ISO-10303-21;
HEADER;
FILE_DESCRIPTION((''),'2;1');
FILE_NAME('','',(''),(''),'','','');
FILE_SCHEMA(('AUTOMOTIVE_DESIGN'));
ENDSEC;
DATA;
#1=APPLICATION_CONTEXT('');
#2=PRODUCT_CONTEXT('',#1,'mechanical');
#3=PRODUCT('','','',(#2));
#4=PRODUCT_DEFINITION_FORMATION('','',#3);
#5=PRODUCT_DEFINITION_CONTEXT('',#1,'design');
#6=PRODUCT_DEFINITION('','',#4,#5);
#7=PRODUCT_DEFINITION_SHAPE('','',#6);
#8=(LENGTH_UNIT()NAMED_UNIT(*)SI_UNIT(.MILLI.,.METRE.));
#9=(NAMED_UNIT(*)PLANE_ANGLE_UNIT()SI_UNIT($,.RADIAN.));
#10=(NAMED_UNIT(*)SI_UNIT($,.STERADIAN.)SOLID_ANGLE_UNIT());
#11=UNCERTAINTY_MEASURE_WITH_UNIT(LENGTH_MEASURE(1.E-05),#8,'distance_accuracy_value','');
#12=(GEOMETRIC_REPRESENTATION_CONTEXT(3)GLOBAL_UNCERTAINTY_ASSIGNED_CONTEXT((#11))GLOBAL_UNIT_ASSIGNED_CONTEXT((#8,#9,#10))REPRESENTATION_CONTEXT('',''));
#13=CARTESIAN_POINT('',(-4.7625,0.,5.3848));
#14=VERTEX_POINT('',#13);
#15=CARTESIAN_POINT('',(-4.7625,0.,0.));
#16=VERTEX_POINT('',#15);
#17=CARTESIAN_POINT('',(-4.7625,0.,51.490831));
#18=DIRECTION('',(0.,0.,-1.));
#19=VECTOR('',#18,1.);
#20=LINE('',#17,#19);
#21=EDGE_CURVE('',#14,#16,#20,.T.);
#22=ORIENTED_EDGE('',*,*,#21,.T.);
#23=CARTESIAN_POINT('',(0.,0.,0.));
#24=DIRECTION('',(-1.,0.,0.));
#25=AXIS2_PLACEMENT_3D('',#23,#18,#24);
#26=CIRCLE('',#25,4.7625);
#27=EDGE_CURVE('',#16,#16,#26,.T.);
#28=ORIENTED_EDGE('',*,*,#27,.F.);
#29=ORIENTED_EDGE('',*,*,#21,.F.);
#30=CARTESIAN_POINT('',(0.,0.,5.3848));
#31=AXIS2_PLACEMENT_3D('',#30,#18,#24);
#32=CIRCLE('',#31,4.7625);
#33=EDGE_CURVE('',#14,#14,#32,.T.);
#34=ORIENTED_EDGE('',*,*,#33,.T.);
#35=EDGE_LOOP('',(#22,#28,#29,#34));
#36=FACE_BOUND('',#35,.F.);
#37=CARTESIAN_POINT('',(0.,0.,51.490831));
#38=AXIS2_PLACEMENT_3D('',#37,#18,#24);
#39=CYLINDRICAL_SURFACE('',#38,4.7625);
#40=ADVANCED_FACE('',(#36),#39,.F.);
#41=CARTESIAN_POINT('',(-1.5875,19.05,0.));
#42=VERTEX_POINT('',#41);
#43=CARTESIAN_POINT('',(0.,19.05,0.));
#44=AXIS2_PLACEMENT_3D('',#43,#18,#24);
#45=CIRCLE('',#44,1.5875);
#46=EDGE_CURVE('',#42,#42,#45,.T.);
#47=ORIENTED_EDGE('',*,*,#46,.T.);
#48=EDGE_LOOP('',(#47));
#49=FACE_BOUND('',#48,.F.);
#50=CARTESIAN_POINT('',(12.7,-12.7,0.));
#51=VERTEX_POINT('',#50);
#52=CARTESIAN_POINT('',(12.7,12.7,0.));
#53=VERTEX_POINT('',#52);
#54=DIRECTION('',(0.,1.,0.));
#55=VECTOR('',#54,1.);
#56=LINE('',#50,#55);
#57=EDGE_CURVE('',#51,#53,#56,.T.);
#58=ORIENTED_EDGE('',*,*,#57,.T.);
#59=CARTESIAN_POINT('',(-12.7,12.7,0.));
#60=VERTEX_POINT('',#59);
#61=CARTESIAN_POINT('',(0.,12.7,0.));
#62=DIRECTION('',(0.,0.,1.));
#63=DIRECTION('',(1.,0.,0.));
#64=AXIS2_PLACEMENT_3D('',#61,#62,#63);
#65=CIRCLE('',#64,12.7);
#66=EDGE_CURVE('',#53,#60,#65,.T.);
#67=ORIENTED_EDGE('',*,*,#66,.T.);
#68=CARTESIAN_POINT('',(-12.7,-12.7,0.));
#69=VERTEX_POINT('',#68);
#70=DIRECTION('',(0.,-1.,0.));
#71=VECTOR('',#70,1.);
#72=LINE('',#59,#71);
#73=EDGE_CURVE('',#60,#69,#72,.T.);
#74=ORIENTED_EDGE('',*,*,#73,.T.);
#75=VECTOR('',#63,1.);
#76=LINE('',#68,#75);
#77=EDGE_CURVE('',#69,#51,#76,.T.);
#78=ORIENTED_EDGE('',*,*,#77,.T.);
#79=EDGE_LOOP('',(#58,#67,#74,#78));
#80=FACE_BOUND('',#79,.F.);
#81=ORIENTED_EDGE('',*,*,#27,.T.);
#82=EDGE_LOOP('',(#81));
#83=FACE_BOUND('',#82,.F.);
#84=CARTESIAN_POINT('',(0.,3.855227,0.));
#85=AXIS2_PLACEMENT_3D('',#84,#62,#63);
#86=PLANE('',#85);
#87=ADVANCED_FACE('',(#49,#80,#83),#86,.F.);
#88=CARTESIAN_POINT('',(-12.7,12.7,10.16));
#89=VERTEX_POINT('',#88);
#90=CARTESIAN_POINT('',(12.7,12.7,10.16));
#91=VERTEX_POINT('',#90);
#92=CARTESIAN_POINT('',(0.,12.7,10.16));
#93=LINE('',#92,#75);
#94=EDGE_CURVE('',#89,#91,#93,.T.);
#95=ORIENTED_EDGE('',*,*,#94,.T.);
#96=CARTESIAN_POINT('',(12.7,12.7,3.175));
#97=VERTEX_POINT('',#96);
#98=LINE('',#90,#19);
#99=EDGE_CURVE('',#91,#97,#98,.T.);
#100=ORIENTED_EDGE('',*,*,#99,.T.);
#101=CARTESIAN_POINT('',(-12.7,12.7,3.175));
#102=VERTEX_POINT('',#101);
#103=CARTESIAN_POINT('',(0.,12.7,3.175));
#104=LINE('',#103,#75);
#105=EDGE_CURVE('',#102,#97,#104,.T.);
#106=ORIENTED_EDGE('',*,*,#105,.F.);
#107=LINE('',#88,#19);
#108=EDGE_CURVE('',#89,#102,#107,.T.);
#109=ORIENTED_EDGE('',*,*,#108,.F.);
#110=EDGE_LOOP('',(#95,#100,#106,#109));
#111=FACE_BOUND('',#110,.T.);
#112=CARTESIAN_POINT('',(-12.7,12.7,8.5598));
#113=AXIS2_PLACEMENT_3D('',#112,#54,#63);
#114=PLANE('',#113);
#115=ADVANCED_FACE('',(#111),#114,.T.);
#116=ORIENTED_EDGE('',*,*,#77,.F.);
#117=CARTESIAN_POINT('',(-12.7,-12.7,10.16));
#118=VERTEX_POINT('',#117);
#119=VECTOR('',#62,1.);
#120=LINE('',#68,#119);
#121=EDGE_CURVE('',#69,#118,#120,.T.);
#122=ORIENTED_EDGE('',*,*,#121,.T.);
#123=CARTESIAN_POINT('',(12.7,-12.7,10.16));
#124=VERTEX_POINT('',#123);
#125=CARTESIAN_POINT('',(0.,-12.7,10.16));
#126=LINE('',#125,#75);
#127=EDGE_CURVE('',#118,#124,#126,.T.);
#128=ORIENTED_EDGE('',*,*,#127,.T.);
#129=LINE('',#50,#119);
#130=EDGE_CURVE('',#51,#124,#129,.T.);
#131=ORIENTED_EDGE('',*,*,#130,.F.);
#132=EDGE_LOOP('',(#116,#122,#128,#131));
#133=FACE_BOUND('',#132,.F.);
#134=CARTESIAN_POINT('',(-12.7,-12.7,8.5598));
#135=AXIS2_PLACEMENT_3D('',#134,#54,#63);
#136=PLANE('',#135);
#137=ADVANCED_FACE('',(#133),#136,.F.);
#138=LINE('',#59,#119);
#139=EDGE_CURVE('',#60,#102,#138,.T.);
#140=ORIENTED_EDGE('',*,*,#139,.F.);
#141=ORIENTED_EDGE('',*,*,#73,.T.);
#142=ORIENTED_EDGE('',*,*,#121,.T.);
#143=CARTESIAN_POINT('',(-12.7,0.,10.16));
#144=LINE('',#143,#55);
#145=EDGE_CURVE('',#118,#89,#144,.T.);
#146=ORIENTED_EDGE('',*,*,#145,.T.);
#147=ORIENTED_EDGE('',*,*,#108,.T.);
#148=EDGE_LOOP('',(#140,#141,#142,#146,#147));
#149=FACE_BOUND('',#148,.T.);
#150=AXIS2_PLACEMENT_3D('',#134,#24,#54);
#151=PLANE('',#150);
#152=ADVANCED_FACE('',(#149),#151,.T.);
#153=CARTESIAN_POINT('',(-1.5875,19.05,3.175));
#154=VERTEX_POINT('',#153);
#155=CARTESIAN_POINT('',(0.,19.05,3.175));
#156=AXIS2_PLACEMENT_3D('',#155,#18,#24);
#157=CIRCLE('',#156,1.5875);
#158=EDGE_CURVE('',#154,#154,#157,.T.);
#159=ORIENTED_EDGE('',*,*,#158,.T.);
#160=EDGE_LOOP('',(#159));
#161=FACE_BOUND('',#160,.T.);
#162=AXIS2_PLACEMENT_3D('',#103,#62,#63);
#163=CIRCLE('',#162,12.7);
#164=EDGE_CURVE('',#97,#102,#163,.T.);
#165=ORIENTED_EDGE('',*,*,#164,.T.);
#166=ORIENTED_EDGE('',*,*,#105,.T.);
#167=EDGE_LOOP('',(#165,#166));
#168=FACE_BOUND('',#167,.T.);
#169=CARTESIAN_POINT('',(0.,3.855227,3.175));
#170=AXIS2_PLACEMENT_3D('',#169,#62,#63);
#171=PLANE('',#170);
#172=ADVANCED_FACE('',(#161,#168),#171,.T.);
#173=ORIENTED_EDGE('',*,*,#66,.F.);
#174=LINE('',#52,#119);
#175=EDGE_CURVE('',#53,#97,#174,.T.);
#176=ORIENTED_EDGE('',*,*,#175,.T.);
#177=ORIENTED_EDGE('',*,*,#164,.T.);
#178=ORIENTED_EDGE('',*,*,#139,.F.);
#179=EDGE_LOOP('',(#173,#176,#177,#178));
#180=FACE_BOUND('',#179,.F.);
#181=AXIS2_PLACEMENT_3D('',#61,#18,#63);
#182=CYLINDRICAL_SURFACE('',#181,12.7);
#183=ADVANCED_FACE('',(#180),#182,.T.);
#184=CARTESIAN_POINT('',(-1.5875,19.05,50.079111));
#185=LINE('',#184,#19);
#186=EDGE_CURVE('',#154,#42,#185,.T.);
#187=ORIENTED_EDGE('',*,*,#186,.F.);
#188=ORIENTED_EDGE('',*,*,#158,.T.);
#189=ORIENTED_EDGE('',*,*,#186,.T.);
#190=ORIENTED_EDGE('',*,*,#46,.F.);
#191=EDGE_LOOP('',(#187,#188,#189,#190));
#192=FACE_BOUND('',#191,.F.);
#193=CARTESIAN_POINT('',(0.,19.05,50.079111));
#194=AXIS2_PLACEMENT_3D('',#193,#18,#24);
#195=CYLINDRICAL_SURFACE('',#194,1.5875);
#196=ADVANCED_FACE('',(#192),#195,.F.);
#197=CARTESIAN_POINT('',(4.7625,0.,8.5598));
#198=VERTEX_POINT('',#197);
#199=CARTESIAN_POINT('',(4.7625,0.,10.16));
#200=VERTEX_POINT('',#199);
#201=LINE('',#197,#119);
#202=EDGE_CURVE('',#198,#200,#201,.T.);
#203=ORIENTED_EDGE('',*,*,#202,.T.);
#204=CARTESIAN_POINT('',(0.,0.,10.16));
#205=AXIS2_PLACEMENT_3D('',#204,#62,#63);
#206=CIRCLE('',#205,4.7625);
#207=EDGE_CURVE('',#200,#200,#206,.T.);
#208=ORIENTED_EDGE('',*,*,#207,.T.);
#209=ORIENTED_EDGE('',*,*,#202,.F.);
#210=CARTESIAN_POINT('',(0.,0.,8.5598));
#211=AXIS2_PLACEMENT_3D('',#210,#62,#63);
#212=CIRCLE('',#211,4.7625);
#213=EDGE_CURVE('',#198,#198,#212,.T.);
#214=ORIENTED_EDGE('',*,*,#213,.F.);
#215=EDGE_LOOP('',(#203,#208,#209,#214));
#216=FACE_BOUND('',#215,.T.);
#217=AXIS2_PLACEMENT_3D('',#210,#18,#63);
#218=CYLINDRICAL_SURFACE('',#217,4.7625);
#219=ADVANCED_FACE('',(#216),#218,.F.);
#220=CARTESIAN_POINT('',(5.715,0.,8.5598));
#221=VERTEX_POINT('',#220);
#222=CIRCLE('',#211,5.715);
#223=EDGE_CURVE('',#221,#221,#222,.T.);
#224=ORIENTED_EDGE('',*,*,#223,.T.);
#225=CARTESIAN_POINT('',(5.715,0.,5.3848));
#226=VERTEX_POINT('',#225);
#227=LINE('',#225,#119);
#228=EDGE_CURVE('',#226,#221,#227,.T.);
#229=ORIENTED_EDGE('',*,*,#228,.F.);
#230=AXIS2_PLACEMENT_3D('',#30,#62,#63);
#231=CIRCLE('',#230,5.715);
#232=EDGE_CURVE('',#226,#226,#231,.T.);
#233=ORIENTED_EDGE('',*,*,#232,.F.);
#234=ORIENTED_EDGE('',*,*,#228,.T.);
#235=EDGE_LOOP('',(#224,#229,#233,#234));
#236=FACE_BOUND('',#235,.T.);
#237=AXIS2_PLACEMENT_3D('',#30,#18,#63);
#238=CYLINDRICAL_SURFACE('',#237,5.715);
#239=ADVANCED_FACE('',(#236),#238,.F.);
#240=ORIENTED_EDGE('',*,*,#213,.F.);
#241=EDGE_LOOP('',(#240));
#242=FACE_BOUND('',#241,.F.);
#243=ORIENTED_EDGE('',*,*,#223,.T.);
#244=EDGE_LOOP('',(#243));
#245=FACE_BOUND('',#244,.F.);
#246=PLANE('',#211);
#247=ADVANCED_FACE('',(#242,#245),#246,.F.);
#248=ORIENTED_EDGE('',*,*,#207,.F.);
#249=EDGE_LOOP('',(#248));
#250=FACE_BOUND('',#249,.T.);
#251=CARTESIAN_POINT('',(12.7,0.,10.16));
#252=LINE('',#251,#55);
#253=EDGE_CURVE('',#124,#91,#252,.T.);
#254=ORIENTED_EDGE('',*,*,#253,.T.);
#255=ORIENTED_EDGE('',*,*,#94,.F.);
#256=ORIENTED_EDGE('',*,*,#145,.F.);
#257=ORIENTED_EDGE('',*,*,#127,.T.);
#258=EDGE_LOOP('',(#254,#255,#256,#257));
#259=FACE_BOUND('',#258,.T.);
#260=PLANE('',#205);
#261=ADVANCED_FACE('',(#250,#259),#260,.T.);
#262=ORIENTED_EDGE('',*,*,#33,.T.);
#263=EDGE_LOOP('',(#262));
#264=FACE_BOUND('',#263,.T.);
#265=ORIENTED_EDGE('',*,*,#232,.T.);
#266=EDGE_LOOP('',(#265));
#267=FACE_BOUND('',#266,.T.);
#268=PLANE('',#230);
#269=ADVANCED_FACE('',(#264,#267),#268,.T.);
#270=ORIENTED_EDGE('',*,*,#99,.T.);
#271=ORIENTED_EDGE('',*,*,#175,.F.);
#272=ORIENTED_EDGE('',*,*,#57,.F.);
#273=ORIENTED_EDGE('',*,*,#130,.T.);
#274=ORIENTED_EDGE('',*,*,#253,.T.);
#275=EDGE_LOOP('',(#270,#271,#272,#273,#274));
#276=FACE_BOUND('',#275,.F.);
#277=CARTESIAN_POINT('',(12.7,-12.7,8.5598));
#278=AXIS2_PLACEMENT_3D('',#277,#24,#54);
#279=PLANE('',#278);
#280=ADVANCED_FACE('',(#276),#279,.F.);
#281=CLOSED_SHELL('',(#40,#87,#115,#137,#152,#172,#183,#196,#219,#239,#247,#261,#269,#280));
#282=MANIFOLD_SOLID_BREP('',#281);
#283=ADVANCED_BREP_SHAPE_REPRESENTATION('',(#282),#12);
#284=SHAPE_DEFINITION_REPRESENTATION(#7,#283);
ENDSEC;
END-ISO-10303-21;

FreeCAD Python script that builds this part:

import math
import FreeCAD as App
import Part
import Sketcher

V = App.Vector
Q = App.Units.Quantity


def add_polygon(sketch, points):
    """Adds a closed chain of lines whose ends are joined by coincident constraints."""
    first, n = sketch.GeometryCount, len(points)
    for a, b in zip(points, points[1:] + points[:1]):
        sketch.addGeometry(Part.LineSegment(App.Vector(*a, 0), App.Vector(*b, 0)), False)
    for i in range(n):
        sketch.addConstraint(Sketcher.Constraint("Coincident", first + i, 2, first + (i + 1) % n, 1))

doc = App.newDocument("Part")
params = doc.addObject("Spreadsheet::Sheet", "Params")
for row, (alias, value) in enumerate([
    ("sketch1_radius", "0.5 in"),
    ("pad1_length", "0.125 in"),
    ("sketch2_width", "1 in"),
    ("pad2_length", "0.087 in"),
    ("sketch3_diameter", "0.375 in"),
    ("hole_diameter", "0.375 in"),
    ("sketch4_diameter", "0.45 in"),
    ("sketch4_width", "1 in"),
    ("pad3_length", "0.125 in"),
    ("sketch5_width", "1 in"),
    ("sketch5_diameter", "0.375 in"),
    ("pad4_length", "0.063 in"),
    ("sketch6_diameter", "0.125 in"),
    ("hole2_diameter", "0.125 in"),
], start=1):
    params.set(f"A{row}", alias)
    params.set(f"B{row}", "=" + value)
    params.setAlias(f"B{row}", alias)

body = doc.addObject("PartDesign::Body", "Body")

sketch1 = body.newObject("Sketcher::SketchObject", "Sketch")
sketch1.AttachmentSupport = (doc.getObject("XY_Plane"), [""])
sketch1.MapMode = "FlatFace"
sketch1.addGeometry(Part.LineSegment(V(-13, -13, 0), V(13, -13, 0)), False)
sketch1.addGeometry(Part.LineSegment(V(13, -13, 0), V(13, 13, 0)), False)
sketch1.addGeometry(Part.ArcOfCircle(Part.Circle(V(0, 13, 0), V(0, 0, 1), 13), math.radians(0), math.radians(180)), False)
sketch1.addGeometry(Part.LineSegment(V(-13, 13, 0), V(-13, -13, 0)), False)
sketch1.addConstraint(Sketcher.Constraint("Coincident", 0, 2, 1, 1))
sketch1.addConstraint(Sketcher.Constraint("Tangent", 1, 2, 2, 1))
sketch1.addConstraint(Sketcher.Constraint("Tangent", 2, 2, 3, 1))
sketch1.addConstraint(Sketcher.Constraint("Coincident", 3, 2, 0, 1))
sketch1.addConstraint(Sketcher.Constraint("Horizontal", 0))
sketch1.addConstraint(Sketcher.Constraint("Vertical", 1))
sketch1.addConstraint(Sketcher.Constraint("Vertical", 3))
sketch1.addConstraint(Sketcher.Constraint("Symmetric", 0, 2, 2, 2, -1, 1))
sketch1.addConstraint(Sketcher.Constraint("Equal", 0, 1))
sketch1.addConstraint(Sketcher.Constraint("Radius", 2, Q("0.5 in")))
sketch1.setExpression("Constraints[9]", "Params.sketch1_radius")
pad1 = body.newObject("PartDesign::Pad", "Pad")
pad1.Profile = sketch1
pad1.setExpression("Length", "Params.pad1_length")

sketch2 = body.newObject("Sketcher::SketchObject", "Sketch001")
sketch2.AttachmentSupport = (doc.getObject("XY_Plane"), [""])
sketch2.MapMode = "FlatFace"
sketch2.AttachmentOffset = App.Placement(V(0, 0, 0.125 * 25.4), App.Rotation())
add_polygon(sketch2, [(-13, 13), (-13, -13), (13, -13), (13, 13)])
sketch2.addConstraint(Sketcher.Constraint("Vertical", 0))
sketch2.addConstraint(Sketcher.Constraint("Horizontal", 1))
sketch2.addConstraint(Sketcher.Constraint("Vertical", 2))
sketch2.addConstraint(Sketcher.Constraint("Horizontal", 3))
sketch2.addConstraint(Sketcher.Constraint("Symmetric", 0, 2, 2, 2, -1, 1))
sketch2.addConstraint(Sketcher.Constraint("Equal", 3, 0))
sketch2.addConstraint(Sketcher.Constraint("DistanceX", 1, 1, 1, 2, Q("1 in")))
sketch2.setExpression("Constraints[10]", "Params.sketch2_width")
pad2 = body.newObject("PartDesign::Pad", "Pad001")
pad2.Profile = sketch2
pad2.setExpression("Length", "Params.pad2_length")

sketch3 = body.newObject("Sketcher::SketchObject", "Sketch002")
sketch3.AttachmentSupport = (doc.getObject("XY_Plane"), [""])
sketch3.MapMode = "FlatFace"
sketch3.AttachmentOffset = App.Placement(V(0, 0, 0.212 * 25.4), App.Rotation())
sketch3.addGeometry(Part.Circle(V(0, 0, 0), V(0, 0, 1), 4.8), False)
sketch3.addConstraint(Sketcher.Constraint("Coincident", 0, 3, -1, 1))
sketch3.addConstraint(Sketcher.Constraint("Diameter", 0, Q("0.375 in")))
sketch3.setExpression("Constraints[1]", "Params.sketch3_diameter")
doc.recompute()
hole = body.newObject("PartDesign::Hole", "Hole")
hole.Profile = sketch3
hole.ThreadType = "None"
hole.setExpression("Diameter", "Params.hole_diameter")
hole.DepthType = "ThroughAll"

sketch4 = body.newObject("Sketcher::SketchObject", "Sketch003")
sketch4.AttachmentSupport = (doc.getObject("XY_Plane"), [""])
sketch4.MapMode = "FlatFace"
sketch4.AttachmentOffset = App.Placement(V(0, 0, 0.212 * 25.4), App.Rotation())
add_polygon(sketch4, [(-13, 13), (-13, -13), (13, -13), (13, 13)])
sketch4.addGeometry(Part.Circle(V(0, 0, 0), V(0, 0, 1), 6), False)
sketch4.addConstraint(Sketcher.Constraint("Vertical", 0))
sketch4.addConstraint(Sketcher.Constraint("Horizontal", 1))
sketch4.addConstraint(Sketcher.Constraint("Vertical", 2))
sketch4.addConstraint(Sketcher.Constraint("Horizontal", 3))
sketch4.addConstraint(Sketcher.Constraint("Coincident", 4, 3, -1, 1))
sketch4.addConstraint(Sketcher.Constraint("Symmetric", 0, 2, 2, 2, -1, 1))
sketch4.addConstraint(Sketcher.Constraint("Equal", 3, 0))
sketch4.addConstraint(Sketcher.Constraint("Diameter", 4, Q("0.45 in")))
sketch4.addConstraint(Sketcher.Constraint("DistanceX", 1, 1, 1, 2, Q("1 in")))
sketch4.setExpression("Constraints[11]", "Params.sketch4_diameter")
sketch4.setExpression("Constraints[12]", "Params.sketch4_width")
pad3 = body.newObject("PartDesign::Pad", "Pad002")
pad3.Profile = sketch4
pad3.setExpression("Length", "Params.pad3_length")

sketch5 = body.newObject("Sketcher::SketchObject", "Sketch004")
sketch5.AttachmentSupport = (doc.getObject("XY_Plane"), [""])
sketch5.MapMode = "FlatFace"
sketch5.AttachmentOffset = App.Placement(V(0, 0, 0.337 * 25.4), App.Rotation())
add_polygon(sketch5, [(-12.7, 12.7), (-12.7, -12.7), (12.7, -12.7), (12.7, 12.7)])
sketch5.addGeometry(Part.Circle(V(0, 0, 0), V(0, 0, 1), 4.8), False)
sketch5.addConstraint(Sketcher.Constraint("Vertical", 0))
sketch5.addConstraint(Sketcher.Constraint("Horizontal", 1))
sketch5.addConstraint(Sketcher.Constraint("Vertical", 2))
sketch5.addConstraint(Sketcher.Constraint("Horizontal", 3))
sketch5.addConstraint(Sketcher.Constraint("Coincident", 4, 3, -1, 1))
sketch5.addConstraint(Sketcher.Constraint("Symmetric", 0, 2, 2, 2, -1, 1))
sketch5.addConstraint(Sketcher.Constraint("Equal", 3, 0))
sketch5.addConstraint(Sketcher.Constraint("DistanceX", 1, 1, 1, 2, Q("1 in")))
sketch5.addConstraint(Sketcher.Constraint("Diameter", 4, Q("0.375 in")))
sketch5.setExpression("Constraints[11]", "Params.sketch5_width")
sketch5.setExpression("Constraints[12]", "Params.sketch5_diameter")
pad4 = body.newObject("PartDesign::Pad", "Pad003")
pad4.Profile = sketch5
pad4.setExpression("Length", "Params.pad4_length")

sketch6 = body.newObject("Sketcher::SketchObject", "Sketch005")
sketch6.AttachmentSupport = (doc.getObject("XY_Plane"), [""])
sketch6.MapMode = "FlatFace"
sketch6.AttachmentOffset = App.Placement(V(0, 0, 0.125 * 25.4), App.Rotation())
sketch6.addGeometry(Part.Circle(V(0, 19.1, 0), V(0, 0, 1), 1.6), False)
sketch6.addConstraint(Sketcher.Constraint("PointOnObject", 0, 3, -2))
sketch6.addConstraint(Sketcher.Constraint("Diameter", 0, Q("0.125 in")))
sketch6.addConstraint(Sketcher.Constraint("DistanceY", -1, 1, 0, 3, Q("0.75 in")))
sketch6.setExpression("Constraints[1]", "Params.sketch6_diameter")
doc.recompute()
hole2 = body.newObject("PartDesign::Hole", "Hole001")
hole2.Profile = sketch6
hole2.ThreadType = "None"
hole2.setExpression("Diameter", "Params.hole2_diameter")
hole2.DepthType = "ThroughAll"

doc.recompute()
